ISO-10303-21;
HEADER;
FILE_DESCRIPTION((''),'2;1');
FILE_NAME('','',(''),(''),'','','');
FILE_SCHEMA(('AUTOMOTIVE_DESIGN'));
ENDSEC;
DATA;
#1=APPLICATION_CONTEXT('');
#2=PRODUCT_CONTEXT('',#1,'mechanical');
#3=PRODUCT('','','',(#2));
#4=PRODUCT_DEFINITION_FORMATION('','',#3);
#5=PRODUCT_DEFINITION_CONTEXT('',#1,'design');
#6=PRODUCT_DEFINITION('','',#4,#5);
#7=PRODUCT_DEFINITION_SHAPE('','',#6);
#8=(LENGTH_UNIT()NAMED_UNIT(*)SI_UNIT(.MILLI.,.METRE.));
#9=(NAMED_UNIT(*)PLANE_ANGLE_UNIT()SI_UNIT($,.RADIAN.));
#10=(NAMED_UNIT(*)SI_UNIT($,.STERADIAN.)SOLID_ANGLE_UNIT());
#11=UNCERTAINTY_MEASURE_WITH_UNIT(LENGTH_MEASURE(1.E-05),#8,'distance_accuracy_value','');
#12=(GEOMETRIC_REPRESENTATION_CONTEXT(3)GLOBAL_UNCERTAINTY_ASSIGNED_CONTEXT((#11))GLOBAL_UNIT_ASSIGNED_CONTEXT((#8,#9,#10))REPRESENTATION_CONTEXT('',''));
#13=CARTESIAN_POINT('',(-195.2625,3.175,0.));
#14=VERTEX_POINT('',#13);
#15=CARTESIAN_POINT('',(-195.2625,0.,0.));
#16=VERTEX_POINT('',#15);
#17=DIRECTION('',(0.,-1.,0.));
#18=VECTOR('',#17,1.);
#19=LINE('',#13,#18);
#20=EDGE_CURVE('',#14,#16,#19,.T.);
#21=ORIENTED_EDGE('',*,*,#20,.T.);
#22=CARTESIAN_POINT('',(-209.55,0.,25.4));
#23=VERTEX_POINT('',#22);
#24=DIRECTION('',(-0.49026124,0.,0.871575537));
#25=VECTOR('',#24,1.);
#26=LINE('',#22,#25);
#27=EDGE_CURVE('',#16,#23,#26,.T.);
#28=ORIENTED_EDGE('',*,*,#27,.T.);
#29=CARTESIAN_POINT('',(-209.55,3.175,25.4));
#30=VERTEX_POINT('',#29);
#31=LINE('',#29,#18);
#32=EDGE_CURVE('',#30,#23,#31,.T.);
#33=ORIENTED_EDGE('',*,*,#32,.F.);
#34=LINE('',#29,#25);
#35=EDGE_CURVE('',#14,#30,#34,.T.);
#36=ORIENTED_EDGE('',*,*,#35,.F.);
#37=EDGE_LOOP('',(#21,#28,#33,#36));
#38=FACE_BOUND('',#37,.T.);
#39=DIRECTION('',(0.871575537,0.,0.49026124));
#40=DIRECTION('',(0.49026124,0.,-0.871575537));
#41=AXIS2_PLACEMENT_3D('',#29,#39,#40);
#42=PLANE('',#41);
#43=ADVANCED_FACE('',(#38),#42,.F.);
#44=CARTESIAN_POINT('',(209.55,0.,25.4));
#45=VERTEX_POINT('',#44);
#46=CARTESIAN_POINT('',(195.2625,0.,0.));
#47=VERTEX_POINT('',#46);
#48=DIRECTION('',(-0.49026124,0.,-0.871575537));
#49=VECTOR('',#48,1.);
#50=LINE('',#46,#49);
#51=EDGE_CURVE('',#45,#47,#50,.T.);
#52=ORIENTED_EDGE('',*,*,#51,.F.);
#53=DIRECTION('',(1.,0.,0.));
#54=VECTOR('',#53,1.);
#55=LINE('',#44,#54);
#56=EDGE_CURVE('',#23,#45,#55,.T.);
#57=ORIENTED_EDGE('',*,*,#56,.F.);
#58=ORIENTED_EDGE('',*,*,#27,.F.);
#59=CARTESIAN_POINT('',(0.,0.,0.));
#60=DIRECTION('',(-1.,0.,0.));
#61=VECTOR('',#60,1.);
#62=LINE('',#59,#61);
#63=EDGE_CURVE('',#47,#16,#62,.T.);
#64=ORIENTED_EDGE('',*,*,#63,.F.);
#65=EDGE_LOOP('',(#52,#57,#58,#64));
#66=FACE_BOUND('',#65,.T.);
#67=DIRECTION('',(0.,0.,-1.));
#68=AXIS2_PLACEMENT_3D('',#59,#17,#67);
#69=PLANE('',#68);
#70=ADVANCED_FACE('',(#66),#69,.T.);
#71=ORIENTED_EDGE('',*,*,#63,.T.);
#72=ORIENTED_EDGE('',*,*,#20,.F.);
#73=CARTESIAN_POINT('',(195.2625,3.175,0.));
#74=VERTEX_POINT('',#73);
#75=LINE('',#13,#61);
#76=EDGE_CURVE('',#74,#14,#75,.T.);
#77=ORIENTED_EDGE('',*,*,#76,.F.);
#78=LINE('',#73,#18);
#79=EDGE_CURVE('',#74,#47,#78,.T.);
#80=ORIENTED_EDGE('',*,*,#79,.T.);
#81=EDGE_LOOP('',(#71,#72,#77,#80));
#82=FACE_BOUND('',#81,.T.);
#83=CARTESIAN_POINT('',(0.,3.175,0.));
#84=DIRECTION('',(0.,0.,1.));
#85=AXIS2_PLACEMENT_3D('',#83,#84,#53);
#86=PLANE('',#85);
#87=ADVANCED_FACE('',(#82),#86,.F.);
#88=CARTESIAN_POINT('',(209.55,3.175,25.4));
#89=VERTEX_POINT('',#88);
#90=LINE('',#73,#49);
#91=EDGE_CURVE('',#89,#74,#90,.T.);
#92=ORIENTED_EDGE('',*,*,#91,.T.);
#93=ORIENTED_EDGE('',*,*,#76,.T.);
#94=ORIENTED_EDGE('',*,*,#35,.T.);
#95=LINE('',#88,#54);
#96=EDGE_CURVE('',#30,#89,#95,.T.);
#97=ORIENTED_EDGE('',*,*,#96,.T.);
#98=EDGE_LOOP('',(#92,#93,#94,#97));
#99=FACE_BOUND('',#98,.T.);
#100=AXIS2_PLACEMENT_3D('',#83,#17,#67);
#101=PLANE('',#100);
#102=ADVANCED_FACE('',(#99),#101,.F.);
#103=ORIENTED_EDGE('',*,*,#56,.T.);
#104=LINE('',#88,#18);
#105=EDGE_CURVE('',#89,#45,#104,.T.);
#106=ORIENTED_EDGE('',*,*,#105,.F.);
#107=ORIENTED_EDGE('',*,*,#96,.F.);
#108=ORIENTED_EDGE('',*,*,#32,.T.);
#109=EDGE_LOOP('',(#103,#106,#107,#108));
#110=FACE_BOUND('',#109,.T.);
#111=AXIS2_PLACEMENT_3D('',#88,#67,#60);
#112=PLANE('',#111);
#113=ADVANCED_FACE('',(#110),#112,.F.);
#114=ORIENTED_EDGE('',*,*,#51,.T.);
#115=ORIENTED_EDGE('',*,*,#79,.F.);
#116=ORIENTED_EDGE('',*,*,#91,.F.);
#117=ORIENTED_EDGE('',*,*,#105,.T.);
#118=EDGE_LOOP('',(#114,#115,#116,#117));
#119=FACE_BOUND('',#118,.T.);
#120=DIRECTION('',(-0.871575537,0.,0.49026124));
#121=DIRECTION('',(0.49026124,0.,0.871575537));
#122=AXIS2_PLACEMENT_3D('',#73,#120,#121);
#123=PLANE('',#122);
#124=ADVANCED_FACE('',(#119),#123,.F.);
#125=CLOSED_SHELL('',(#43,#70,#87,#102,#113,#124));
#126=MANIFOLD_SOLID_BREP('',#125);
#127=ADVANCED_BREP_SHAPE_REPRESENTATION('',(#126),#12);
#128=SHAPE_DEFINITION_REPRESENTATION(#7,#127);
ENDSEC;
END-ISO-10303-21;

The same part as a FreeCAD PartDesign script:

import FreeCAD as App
import Part
import Sketcher
from FreeCAD import Vector
Q = App.Units.Quantity


def add_polygon(sketch, points):
    """Adds a closed chain of lines whose ends are joined by coincident constraints."""
    first, n = sketch.GeometryCount, len(points)
    for a, b in zip(points, points[1:] + points[:1]):
        sketch.addGeometry(Part.LineSegment(App.Vector(*a, 0), App.Vector(*b, 0)), False)
    for i in range(n):
        sketch.addConstraint(Sketcher.Constraint("Coincident", first + i, 2, first + (i + 1) % n, 1))

doc = App.newDocument("Part")
body = doc.addObject("PartDesign::Body", "Body")

sketch1 = body.newObject("Sketcher::SketchObject", "Sketch")
sketch1.AttachmentSupport = (doc.getObject("XZ_Plane"), [""])
sketch1.MapMode = "FlatFace"
add_polygon(sketch1, [(195, 0), (-195, 0), (-210, 25), (210, 25)])
sketch1.addConstraint([
    Sketcher.Constraint("Horizontal", 0),
    Sketcher.Constraint("Horizontal", 2),
    Sketcher.Constraint("Symmetric", 0, 2, 3, 2, -1, 1),
    Sketcher.Constraint("Equal", 1, 3),
    Sketcher.Constraint("DistanceX", 2, 1, 2, 2, Q("16.5 in")),
    Sketcher.Constraint("DistanceY", -1, 1, 1, 2, Q("1 in")),
    Sketcher.Constraint("DistanceX", 0, 2, 0, 1, Q("15.375 in")),
])
pad1 = body.newObject("PartDesign::Pad", "Pad")
pad1.Profile = sketch1
pad1.Length = Q("0.125 in")
pad1.Reversed = True

doc.recompute()
